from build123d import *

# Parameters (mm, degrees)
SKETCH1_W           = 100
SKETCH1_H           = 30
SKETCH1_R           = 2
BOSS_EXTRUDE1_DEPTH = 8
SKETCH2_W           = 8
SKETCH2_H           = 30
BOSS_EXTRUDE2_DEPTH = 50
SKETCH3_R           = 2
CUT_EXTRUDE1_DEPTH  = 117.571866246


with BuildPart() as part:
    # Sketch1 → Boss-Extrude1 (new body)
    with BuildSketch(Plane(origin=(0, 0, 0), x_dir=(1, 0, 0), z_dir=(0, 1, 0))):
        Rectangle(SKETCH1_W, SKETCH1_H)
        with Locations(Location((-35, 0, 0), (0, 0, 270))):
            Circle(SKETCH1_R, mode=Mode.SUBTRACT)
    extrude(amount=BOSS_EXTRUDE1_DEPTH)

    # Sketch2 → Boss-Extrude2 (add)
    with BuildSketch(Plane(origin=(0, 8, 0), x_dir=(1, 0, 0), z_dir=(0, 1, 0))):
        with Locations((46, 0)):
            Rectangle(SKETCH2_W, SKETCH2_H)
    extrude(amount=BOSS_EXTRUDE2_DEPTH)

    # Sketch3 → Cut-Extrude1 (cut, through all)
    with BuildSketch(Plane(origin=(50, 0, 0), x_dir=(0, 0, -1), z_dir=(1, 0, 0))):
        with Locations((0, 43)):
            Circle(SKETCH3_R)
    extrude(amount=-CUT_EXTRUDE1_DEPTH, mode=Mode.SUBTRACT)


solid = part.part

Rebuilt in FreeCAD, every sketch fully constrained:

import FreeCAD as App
import Part
import Sketcher
from FreeCAD import Vector


def add_polygon(sketch, points):
    """Adds a closed chain of lines whose ends are joined by coincident constraints."""
    first, n = sketch.GeometryCount, len(points)
    for a, b in zip(points, points[1:] + points[:1]):
        sketch.addGeometry(Part.LineSegment(App.Vector(*a, 0), App.Vector(*b, 0)), False)
    for i in range(n):
        sketch.addConstraint(Sketcher.Constraint("Coincident", first + i, 2, first + (i + 1) % n, 1))

doc = App.newDocument("Part")
body = doc.addObject("PartDesign::Body", "Body")

sketch1 = body.newObject("Sketcher::SketchObject", "Sketch")
sketch1.AttachmentSupport = (doc.getObject("XZ_Plane"), [""])
sketch1.MapMode = "FlatFace"
add_polygon(sketch1, [(-50, -15), (-50, 15), (50, 15), (50, -15)])
sketch1.addGeometry(Part.Circle(Vector(-35, 0, 0), Vector(0, 0, 1), 2), False)
sketch1.addConstraint([
    Sketcher.Constraint("Vertical", 0),
    Sketcher.Constraint("Horizontal", 1),
    Sketcher.Constraint("Vertical", 2),
    Sketcher.Constraint("Horizontal", 3),
    Sketcher.Constraint("Symmetric", 0, 2, 2, 2, -1, 1),
    Sketcher.Constraint("PointOnObject", 4, 3, -1),
    Sketcher.Constraint("Diameter", 4, 4.0),
    Sketcher.Constraint("DistanceX", 1, 1, 1, 2, 100.0),
    Sketcher.Constraint("DistanceY", 0, 1, 0, 2, 30.0),
    Sketcher.Constraint("DistanceX", 4, 3, -1, 1, 35.0),
])
pad1 = body.newObject("PartDesign::Pad", "Pad")
pad1.Profile = sketch1
pad1.Length = 8
pad1.Reversed = True

sketch2 = body.newObject("Sketcher::SketchObject", "Sketch001")
sketch2.AttachmentSupport = (doc.getObject("XZ_Plane"), [""])
sketch2.MapMode = "FlatFace"
sketch2.AttachmentOffset = App.Placement(Vector(0, 0, -8), App.Rotation())
add_polygon(sketch2, [(42, -15), (42, 15), (50, 15), (50, -15)])
sketch2.addConstraint([
    Sketcher.Constraint("Vertical", 0),
    Sketcher.Constraint("Horizontal", 1),
    Sketcher.Constraint("Vertical", 2),
    Sketcher.Constraint("Horizontal", 3),
    Sketcher.Constraint("DistanceX", 1, 1, 1, 2, 8.0),
    Sketcher.Constraint("DistanceY", 0, 1, 0, 2, 30.0),
    Sketcher.Constraint("DistanceX", -1, 1, 0, 2, 42.0),
    Sketcher.Constraint("DistanceY", -1, 1, 0, 2, 15.0),
])
pad2 = body.newObject("PartDesign::Pad", "Pad001")
pad2.Profile = sketch2
pad2.Length = 50
pad2.Reversed = True

sketch3 = body.newObject("Sketcher::SketchObject", "Sketch002")
sketch3.AttachmentSupport = (doc.getObject("YZ_Plane"), [""])
sketch3.MapMode = "FlatFace"
sketch3.AttachmentOffset = App.Placement(Vector(0, 0, 50), App.Rotation())
sketch3.addGeometry(Part.Circle(Vector(43, 0, 0), Vector(0, 0, 1), 2), False)
sketch3.addConstraint([
    Sketcher.Constraint("PointOnObject", 0, 3, -1),
    Sketcher.Constraint("Diameter", 0, 4.0),
    Sketcher.Constraint("DistanceX", -1, 1, 0, 3, 43.0),
])
pocket1 = body.newObject("PartDesign::Pocket", "Pocket")
pocket1.Profile = sketch3
pocket1.Type = "ThroughAll"

doc.recompute()
